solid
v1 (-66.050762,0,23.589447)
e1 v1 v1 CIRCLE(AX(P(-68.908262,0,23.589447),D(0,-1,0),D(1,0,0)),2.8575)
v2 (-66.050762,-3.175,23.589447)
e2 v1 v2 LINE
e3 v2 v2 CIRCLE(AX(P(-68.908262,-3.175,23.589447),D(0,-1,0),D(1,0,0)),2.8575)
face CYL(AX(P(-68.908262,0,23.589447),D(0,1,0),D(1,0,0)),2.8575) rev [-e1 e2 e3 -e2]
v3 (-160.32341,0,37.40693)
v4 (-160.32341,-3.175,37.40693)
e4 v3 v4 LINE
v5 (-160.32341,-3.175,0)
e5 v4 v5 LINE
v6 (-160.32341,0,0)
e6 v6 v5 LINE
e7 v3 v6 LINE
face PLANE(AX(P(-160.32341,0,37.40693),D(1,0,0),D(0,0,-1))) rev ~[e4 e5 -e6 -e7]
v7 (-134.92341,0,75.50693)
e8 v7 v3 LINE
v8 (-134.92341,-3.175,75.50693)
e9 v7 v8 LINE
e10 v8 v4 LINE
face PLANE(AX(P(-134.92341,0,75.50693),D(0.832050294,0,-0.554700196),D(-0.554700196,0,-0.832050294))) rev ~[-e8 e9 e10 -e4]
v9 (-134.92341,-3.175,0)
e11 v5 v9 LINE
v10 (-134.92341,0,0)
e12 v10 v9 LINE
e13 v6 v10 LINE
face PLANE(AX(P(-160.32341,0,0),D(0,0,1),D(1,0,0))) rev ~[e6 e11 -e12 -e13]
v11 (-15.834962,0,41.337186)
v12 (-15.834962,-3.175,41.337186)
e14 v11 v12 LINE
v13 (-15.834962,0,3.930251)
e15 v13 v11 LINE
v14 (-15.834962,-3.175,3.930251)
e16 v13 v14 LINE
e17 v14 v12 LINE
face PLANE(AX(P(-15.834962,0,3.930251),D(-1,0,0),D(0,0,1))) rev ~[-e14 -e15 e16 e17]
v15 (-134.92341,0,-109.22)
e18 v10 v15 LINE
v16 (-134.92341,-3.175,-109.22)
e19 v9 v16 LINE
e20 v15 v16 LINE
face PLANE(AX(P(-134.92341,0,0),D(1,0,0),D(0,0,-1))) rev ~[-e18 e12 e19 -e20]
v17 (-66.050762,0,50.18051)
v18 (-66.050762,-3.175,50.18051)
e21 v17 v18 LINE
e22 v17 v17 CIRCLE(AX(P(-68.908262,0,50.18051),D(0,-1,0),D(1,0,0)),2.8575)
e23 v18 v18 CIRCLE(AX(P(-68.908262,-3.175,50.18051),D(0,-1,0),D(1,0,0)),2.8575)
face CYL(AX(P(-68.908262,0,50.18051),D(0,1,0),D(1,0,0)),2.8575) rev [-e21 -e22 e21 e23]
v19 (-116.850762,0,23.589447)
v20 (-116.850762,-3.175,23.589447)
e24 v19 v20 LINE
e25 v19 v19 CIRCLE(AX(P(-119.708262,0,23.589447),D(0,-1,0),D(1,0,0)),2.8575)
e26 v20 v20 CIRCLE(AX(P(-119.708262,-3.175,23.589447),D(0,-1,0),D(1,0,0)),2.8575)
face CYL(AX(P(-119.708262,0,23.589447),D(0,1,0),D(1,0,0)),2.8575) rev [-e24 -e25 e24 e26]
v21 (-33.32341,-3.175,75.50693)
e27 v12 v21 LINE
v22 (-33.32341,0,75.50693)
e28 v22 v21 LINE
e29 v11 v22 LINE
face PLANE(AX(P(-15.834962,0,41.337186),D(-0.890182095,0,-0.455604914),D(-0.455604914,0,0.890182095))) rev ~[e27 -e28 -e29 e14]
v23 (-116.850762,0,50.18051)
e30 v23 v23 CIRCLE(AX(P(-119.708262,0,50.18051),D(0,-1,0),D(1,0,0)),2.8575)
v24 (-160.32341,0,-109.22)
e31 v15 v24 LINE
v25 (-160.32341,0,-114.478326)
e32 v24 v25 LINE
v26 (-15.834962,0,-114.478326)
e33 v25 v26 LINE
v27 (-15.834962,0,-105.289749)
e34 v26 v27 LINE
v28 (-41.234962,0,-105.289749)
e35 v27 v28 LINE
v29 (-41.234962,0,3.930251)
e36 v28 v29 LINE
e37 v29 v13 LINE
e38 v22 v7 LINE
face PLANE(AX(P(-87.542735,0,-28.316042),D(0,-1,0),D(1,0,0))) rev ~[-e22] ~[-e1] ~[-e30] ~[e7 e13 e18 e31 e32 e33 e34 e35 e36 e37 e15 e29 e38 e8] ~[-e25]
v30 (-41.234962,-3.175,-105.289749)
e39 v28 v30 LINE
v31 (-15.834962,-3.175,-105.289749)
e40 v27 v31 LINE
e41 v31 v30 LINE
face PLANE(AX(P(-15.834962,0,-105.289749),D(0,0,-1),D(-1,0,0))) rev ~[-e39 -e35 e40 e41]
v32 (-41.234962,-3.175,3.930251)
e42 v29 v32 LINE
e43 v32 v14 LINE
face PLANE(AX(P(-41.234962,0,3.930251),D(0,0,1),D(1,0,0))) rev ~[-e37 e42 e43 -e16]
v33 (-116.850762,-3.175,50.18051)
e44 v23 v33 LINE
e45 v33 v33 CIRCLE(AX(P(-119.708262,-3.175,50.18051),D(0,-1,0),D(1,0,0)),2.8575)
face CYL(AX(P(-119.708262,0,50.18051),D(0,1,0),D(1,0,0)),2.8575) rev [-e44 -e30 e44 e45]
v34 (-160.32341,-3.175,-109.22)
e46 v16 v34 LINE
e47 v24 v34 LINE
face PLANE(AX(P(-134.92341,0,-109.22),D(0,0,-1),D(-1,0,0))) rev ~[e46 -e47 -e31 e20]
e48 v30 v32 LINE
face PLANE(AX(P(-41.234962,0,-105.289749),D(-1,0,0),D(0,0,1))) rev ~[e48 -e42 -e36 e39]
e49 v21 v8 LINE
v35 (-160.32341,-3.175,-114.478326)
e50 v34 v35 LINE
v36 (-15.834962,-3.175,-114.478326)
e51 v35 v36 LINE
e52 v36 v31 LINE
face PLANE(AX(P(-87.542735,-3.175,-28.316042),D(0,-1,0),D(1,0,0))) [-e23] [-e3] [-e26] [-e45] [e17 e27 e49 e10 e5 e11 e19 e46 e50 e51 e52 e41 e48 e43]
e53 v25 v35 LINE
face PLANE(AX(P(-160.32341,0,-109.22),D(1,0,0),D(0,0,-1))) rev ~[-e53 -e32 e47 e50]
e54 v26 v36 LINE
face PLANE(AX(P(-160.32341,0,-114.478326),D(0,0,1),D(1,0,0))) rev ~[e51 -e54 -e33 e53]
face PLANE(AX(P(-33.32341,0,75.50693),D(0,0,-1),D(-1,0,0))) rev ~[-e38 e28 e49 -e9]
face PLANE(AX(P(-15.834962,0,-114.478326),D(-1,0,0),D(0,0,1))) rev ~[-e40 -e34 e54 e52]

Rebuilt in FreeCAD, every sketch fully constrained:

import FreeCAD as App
import Part
import Sketcher

V = App.Vector
Q = App.Units.Quantity

doc = App.newDocument("Part")
params = doc.addObject("Spreadsheet::Sheet", "Params")
for row, (alias, value) in enumerate([
    ("sketch1_width", "4 in"),
    ("sketch1_width2", "1 in"),
    ("sketch1_diameter", "0.225 in"),
    ("sketch1_height", "4.3 in"),
    ("pad1_length", "0.125 in"),
], start=1):
    params.set(f"A{row}", alias)
    params.set(f"B{row}", "=" + value)
    params.setAlias(f"B{row}", alias)

body = doc.addObject("PartDesign::Body", "Body")

# Sketch on XZ plane
sketch1 = body.newObject("Sketcher::SketchObject", "Sketch")
sketch1.AttachmentSupport = (doc.getObject("XZ_Plane"), [""])
sketch1.MapMode = "FlatFace"
sketch1.addGeometry(Part.LineSegment(V(-33.3, 75.5, 0), V(-134.9, 75.5, 0)), False)
sketch1.addGeometry(Part.LineSegment(V(-134.9, 75.5, 0), V(-160.3, 37.4, 0)), False)
sketch1.addGeometry(Part.LineSegment(V(-160.3, 37.4, 0), V(-160.3, 0, 0)), False)
sketch1.addGeometry(Part.LineSegment(V(-160.3, 0, 0), V(-134.9, 0, 0)), False)
sketch1.addGeometry(Part.LineSegment(V(-134.9, 0, 0), V(-134.9, -109.2, 0)), False)
sketch1.addGeometry(Part.LineSegment(V(-134.9, -109.2, 0), V(-160.3, -109.2, 0)), False)
sketch1.addGeometry(Part.LineSegment(V(-160.3, -109.2, 0), V(-160.3, -114.5, 0)), False)
sketch1.addGeometry(Part.LineSegment(V(-160.3, -114.5, 0), V(-15.8, -114.5, 0)), False)
sketch1.addGeometry(Part.LineSegment(V(-15.8, -114.5, 0), V(-15.8, -105.3, 0)), False)
sketch1.addGeometry(Part.LineSegment(V(-15.8, -105.3, 0), V(-41.2, -105.3, 0)), False)
sketch1.addGeometry(Part.LineSegment(V(-41.2, -105.3, 0), V(-41.2, 3.9, 0)), False)
sketch1.addGeometry(Part.LineSegment(V(-41.2, 3.9, 0), V(-15.8, 3.9, 0)), False)
sketch1.addGeometry(Part.LineSegment(V(-15.8, 3.9, 0), V(-15.8, 41.3, 0)), False)
sketch1.addGeometry(Part.LineSegment(V(-15.8, 41.3, 0), V(-33.3, 75.5, 0)), False)
sketch1.addGeometry(Part.Circle(V(-119.7, 23.6, 0), V(0, 0, 1), 2.9), False)
sketch1.addGeometry(Part.Circle(V(-68.9, 23.6, 0), V(0, 0, 1), 2.9), False)
sketch1.addGeometry(Part.Circle(V(-119.7, 50.2, 0), V(0, 0, 1), 2.9), False)
sketch1.addGeometry(Part.Circle(V(-68.9, 50.2, 0), V(0, 0, 1), 2.9), False)
sketch1.addConstraint(Sketcher.Constraint("Coincident", 0, 2, 1, 1))
sketch1.addConstraint(Sketcher.Constraint("Coincident", 1, 2, 2, 1))
sketch1.addConstraint(Sketcher.Constraint("Coincident", 2, 2, 3, 1))
sketch1.addConstraint(Sketcher.Constraint("Coincident", 3, 2, 4, 1))
sketch1.addConstraint(Sketcher.Constraint("Coincident", 4, 2, 5, 1))
sketch1.addConstraint(Sketcher.Constraint("Coincident", 5, 2, 6, 1))
sketch1.addConstraint(Sketcher.Constraint("Coincident", 6, 2, 7, 1))
sketch1.addConstraint(Sketcher.Constraint("Coincident", 7, 2, 8, 1))
sketch1.addConstraint(Sketcher.Constraint("Coincident", 8, 2, 9, 1))
sketch1.addConstraint(Sketcher.Constraint("Coincident", 9, 2, 10, 1))
sketch1.addConstraint(Sketcher.Constraint("Coincident", 10, 2, 11, 1))
sketch1.addConstraint(Sketcher.Constraint("Coincident", 11, 2, 12, 1))
sketch1.addConstraint(Sketcher.Constraint("Coincident", 12, 2, 13, 1))
sketch1.addConstraint(Sketcher.Constraint("Coincident", 13, 2, 0, 1))
sketch1.addConstraint(Sketcher.Constraint("Horizontal", 0))
sketch1.addConstraint(Sketcher.Constraint("Vertical", 2))
sketch1.addConstraint(Sketcher.Constraint("Horizontal", 3))
sketch1.addConstraint(Sketcher.Constraint("Vertical", 4))
sketch1.addConstraint(Sketcher.Constraint("Horizontal", 5))
sketch1.addConstraint(Sketcher.Constraint("Vertical", 6))
sketch1.addConstraint(Sketcher.Constraint("Horizontal", 7))
sketch1.addConstraint(Sketcher.Constraint("Vertical", 8))
sketch1.addConstraint(Sketcher.Constraint("Horizontal", 9))
sketch1.addConstraint(Sketcher.Constraint("Vertical", 10))
sketch1.addConstraint(Sketcher.Constraint("Horizontal", 11))
sketch1.addConstraint(Sketcher.Constraint("Vertical", 12))
sketch1.addConstraint(Sketcher.Constraint("Equal", 14, 15))
sketch1.addConstraint(Sketcher.Constraint("Equal", 15, 16))
sketch1.addConstraint(Sketcher.Constraint("Equal", 16, 17))
sketch1.addConstraint(Sketcher.Constraint("PointOnObject", 2, 2, -1))
sketch1.addConstraint(Sketcher.Constraint("Horizontal", 14, 3, 15, 3))
sketch1.addConstraint(Sketcher.Constraint("Horizontal", 16, 3, 17, 3))
sketch1.addConstraint(Sketcher.Constraint("Vertical", 14, 3, 16, 3))
sketch1.addConstraint(Sketcher.Constraint("Vertical", 15, 3, 17, 3))
sketch1.addConstraint(Sketcher.Constraint("Vertical", 0, 2, 3, 2))
sketch1.addConstraint(Sketcher.Constraint("Vertical", 2, 2, 5, 2))
sketch1.addConstraint(Sketcher.Constraint("Vertical", 8, 2, 11, 2))
sketch1.addConstraint(Sketcher.Constraint("Equal", 5, 9))
sketch1.addConstraint(Sketcher.Constraint("Equal", 4, 10))
sketch1.addConstraint(Sketcher.Constraint("DistanceX", 0, 2, 0, 1, Q("4 in")))
sketch1.addConstraint(Sketcher.Constraint("DistanceX", 3, 1, 3, 2, Q("1 in")))
sketch1.addConstraint(Sketcher.Constraint("Diameter", 14, Q("0.225 in")))
sketch1.addConstraint(Sketcher.Constraint("DistanceY", 4, 2, 4, 1, Q("4.3 in")))
sketch1.addConstraint(Sketcher.Constraint("DistanceX", 14, 3, 15, 3, Q("2 in")))
sketch1.addConstraint(Sketcher.Constraint("DistanceY", 1, 2, 0, 2, Q("1.5 in")))
sketch1.addConstraint(Sketcher.Constraint("DistanceX", 15, 3, 7, 2, Q("2.0895 in")))
sketch1.addConstraint(Sketcher.Constraint("DistanceX", 7, 1, 7, 2, 144.488448))
sketch1.addConstraint(Sketcher.Constraint("DistanceY", 2, 2, 2, 1, 37.40693))
sketch1.addConstraint(Sketcher.Constraint("DistanceY", 6, 2, 6, 1, 5.258326))
sketch1.addConstraint(Sketcher.Constraint("DistanceY", 8, 1, 8, 2, 9.188577))
sketch1.addConstraint(Sketcher.Constraint("DistanceY", 12, 1, 12, 2, 37.406935))
sketch1.addConstraint(Sketcher.Constraint("DistanceX", 15, 3, -1, 1, 68.908262))
sketch1.addConstraint(Sketcher.Constraint("DistanceY", -1, 1, 16, 3, 50.18051))
sketch1.addConstraint(Sketcher.Constraint("DistanceY", 15, 3, 12, 2, 17.747739))
sketch1.setExpression("Constraints[39]", "Params.sketch1_width")
sketch1.setExpression("Constraints[40]", "Params.sketch1_width2")
sketch1.setExpression("Constraints[41]", "Params.sketch1_diameter")
sketch1.setExpression("Constraints[42]", "Params.sketch1_height")
pad1 = body.newObject("PartDesign::Pad", "Pad")
pad1.Profile = sketch1
pad1.setExpression("Length", "Params.pad1_length")

doc.recompute()
